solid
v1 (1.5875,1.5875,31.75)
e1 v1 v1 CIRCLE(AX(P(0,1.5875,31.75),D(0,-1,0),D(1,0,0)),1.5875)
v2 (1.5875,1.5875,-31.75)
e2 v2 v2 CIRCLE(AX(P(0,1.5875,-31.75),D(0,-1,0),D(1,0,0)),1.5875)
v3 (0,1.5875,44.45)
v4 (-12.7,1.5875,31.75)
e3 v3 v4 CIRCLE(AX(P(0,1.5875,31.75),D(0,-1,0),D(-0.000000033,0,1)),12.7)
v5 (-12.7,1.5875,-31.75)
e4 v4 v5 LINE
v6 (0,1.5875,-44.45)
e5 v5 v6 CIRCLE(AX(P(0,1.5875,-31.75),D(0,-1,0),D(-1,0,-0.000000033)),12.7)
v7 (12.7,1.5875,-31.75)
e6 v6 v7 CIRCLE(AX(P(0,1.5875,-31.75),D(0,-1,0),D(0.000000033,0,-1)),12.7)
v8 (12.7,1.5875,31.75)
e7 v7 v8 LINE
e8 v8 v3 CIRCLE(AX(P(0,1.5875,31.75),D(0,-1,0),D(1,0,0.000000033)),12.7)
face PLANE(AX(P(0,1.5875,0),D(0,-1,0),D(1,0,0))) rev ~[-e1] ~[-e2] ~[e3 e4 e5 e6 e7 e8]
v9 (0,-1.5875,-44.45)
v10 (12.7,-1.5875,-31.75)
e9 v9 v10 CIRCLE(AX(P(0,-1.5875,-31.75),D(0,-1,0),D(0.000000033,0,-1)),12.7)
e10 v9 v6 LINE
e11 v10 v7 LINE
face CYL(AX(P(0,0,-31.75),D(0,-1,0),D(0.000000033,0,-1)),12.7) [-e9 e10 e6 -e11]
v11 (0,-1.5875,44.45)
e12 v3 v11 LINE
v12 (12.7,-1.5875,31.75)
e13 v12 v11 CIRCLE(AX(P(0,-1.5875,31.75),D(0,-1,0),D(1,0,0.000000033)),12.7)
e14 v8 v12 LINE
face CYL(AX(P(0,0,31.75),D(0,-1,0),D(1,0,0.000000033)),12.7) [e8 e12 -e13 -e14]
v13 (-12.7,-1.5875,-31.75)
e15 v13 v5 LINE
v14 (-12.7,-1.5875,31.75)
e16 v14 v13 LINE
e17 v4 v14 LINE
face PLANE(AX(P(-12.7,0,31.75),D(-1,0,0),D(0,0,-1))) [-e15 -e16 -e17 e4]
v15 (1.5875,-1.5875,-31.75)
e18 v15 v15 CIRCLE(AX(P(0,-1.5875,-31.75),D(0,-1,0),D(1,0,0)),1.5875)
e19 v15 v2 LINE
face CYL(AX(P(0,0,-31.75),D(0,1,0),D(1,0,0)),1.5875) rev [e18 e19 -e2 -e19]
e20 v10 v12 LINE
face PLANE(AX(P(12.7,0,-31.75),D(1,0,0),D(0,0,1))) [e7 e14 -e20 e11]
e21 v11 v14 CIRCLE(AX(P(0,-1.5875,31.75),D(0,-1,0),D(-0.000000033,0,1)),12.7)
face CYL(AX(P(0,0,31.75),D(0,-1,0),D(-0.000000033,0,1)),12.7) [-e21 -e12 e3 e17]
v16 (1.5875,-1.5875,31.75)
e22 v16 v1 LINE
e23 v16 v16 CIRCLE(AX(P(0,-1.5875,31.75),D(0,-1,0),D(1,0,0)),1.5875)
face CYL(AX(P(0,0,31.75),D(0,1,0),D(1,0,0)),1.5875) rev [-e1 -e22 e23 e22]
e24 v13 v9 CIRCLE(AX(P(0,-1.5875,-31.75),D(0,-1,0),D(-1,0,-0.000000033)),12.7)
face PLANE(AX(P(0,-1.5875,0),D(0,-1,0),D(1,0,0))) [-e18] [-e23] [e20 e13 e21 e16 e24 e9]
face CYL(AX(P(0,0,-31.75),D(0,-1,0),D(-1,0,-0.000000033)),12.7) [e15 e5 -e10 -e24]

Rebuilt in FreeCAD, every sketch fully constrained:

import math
import FreeCAD as App
import Part
import Sketcher
Q = App.Units.Quantity

doc = App.newDocument("Part")
body = doc.addObject("PartDesign::Body", "Body")

# Sketch on XZ plane
sketch1 = doc.addObject("Sketcher::SketchObject", "Sketch")
body.addObject(sketch1)
sketch1.AttachmentSupport = (doc.XZ_Plane, [""])
sketch1.MapMode = "FlatFace"
sketch1.addGeometry([
    Part.LineSegment(App.Vector(12.7, -31.75, 0), App.Vector(12.7, 31.75, 0)),  # 0
    Part.ArcOfCircle(Part.Circle(App.Vector(0, 31.75, 0), App.Vector(0, 0, 1), 12.7), math.radians(0.000002), math.radians(89.999998)),  # 1
    Part.ArcOfCircle(Part.Circle(App.Vector(0, 31.75, 0), App.Vector(0, 0, 1), 12.7), math.radians(90.000002), math.radians(179.999998)),  # 2
    Part.LineSegment(App.Vector(-12.7, 31.75, 0), App.Vector(-12.7, -31.75, 0)),  # 3
    Part.ArcOfCircle(Part.Circle(App.Vector(0, -31.75, 0), App.Vector(0, 0, 1), 12.7), math.radians(-179.999998), math.radians(-90.000002)),  # 4
    Part.ArcOfCircle(Part.Circle(App.Vector(0, -31.75, 0), App.Vector(0, 0, 1), 12.7), math.radians(-89.999998), math.radians(-0.000002)),  # 5
    Part.Circle(App.Vector(0, -31.75, 0), App.Vector(0, 0, 1), 1.5875),  # 6
    Part.Circle(App.Vector(0, 31.75, 0), App.Vector(0, 0, 1), 1.5875),  # 7
], False)
sketch1.addConstraint([
    Sketcher.Constraint("Tangent", 0, 2, 1, 1),
    Sketcher.Constraint("Tangent", 1, 2, 2, 1),
    Sketcher.Constraint("Tangent", 2, 2, 3, 1),
    Sketcher.Constraint("Tangent", 3, 2, 4, 1),
    Sketcher.Constraint("Tangent", 4, 2, 5, 1),
    Sketcher.Constraint("Tangent", 5, 2, 0, 1),
    Sketcher.Constraint("Vertical", 0),
    Sketcher.Constraint("Vertical", 3),
    Sketcher.Constraint("Coincident", 6, 3, 4, 3),
    Sketcher.Constraint("Coincident", 7, 3, 1, 3),
    Sketcher.Constraint("Equal", 1, 2),
    Sketcher.Constraint("Equal", 2, 4),
    Sketcher.Constraint("Equal", 6, 7),
    Sketcher.Constraint("Symmetric", 1, 3, 4, 3, -1, 1),
    Sketcher.Constraint("PointOnObject", 1, 2, -2),
    Sketcher.Constraint("PointOnObject", 4, 2, -2),
    Sketcher.Constraint("Radius", 1, Q("0.5 in")),
    Sketcher.Constraint("Diameter", 6, Q("0.125 in")),
    Sketcher.Constraint("DistanceY", 0, 1, 0, 2, Q("2.5 in")),
])
pad1 = doc.addObject("PartDesign::Pad", "Pad")
body.addObject(pad1)
pad1.Profile = sketch1
pad1.Length = Q("0.125 in")
pad1.Midplane = True

doc.recompute()
